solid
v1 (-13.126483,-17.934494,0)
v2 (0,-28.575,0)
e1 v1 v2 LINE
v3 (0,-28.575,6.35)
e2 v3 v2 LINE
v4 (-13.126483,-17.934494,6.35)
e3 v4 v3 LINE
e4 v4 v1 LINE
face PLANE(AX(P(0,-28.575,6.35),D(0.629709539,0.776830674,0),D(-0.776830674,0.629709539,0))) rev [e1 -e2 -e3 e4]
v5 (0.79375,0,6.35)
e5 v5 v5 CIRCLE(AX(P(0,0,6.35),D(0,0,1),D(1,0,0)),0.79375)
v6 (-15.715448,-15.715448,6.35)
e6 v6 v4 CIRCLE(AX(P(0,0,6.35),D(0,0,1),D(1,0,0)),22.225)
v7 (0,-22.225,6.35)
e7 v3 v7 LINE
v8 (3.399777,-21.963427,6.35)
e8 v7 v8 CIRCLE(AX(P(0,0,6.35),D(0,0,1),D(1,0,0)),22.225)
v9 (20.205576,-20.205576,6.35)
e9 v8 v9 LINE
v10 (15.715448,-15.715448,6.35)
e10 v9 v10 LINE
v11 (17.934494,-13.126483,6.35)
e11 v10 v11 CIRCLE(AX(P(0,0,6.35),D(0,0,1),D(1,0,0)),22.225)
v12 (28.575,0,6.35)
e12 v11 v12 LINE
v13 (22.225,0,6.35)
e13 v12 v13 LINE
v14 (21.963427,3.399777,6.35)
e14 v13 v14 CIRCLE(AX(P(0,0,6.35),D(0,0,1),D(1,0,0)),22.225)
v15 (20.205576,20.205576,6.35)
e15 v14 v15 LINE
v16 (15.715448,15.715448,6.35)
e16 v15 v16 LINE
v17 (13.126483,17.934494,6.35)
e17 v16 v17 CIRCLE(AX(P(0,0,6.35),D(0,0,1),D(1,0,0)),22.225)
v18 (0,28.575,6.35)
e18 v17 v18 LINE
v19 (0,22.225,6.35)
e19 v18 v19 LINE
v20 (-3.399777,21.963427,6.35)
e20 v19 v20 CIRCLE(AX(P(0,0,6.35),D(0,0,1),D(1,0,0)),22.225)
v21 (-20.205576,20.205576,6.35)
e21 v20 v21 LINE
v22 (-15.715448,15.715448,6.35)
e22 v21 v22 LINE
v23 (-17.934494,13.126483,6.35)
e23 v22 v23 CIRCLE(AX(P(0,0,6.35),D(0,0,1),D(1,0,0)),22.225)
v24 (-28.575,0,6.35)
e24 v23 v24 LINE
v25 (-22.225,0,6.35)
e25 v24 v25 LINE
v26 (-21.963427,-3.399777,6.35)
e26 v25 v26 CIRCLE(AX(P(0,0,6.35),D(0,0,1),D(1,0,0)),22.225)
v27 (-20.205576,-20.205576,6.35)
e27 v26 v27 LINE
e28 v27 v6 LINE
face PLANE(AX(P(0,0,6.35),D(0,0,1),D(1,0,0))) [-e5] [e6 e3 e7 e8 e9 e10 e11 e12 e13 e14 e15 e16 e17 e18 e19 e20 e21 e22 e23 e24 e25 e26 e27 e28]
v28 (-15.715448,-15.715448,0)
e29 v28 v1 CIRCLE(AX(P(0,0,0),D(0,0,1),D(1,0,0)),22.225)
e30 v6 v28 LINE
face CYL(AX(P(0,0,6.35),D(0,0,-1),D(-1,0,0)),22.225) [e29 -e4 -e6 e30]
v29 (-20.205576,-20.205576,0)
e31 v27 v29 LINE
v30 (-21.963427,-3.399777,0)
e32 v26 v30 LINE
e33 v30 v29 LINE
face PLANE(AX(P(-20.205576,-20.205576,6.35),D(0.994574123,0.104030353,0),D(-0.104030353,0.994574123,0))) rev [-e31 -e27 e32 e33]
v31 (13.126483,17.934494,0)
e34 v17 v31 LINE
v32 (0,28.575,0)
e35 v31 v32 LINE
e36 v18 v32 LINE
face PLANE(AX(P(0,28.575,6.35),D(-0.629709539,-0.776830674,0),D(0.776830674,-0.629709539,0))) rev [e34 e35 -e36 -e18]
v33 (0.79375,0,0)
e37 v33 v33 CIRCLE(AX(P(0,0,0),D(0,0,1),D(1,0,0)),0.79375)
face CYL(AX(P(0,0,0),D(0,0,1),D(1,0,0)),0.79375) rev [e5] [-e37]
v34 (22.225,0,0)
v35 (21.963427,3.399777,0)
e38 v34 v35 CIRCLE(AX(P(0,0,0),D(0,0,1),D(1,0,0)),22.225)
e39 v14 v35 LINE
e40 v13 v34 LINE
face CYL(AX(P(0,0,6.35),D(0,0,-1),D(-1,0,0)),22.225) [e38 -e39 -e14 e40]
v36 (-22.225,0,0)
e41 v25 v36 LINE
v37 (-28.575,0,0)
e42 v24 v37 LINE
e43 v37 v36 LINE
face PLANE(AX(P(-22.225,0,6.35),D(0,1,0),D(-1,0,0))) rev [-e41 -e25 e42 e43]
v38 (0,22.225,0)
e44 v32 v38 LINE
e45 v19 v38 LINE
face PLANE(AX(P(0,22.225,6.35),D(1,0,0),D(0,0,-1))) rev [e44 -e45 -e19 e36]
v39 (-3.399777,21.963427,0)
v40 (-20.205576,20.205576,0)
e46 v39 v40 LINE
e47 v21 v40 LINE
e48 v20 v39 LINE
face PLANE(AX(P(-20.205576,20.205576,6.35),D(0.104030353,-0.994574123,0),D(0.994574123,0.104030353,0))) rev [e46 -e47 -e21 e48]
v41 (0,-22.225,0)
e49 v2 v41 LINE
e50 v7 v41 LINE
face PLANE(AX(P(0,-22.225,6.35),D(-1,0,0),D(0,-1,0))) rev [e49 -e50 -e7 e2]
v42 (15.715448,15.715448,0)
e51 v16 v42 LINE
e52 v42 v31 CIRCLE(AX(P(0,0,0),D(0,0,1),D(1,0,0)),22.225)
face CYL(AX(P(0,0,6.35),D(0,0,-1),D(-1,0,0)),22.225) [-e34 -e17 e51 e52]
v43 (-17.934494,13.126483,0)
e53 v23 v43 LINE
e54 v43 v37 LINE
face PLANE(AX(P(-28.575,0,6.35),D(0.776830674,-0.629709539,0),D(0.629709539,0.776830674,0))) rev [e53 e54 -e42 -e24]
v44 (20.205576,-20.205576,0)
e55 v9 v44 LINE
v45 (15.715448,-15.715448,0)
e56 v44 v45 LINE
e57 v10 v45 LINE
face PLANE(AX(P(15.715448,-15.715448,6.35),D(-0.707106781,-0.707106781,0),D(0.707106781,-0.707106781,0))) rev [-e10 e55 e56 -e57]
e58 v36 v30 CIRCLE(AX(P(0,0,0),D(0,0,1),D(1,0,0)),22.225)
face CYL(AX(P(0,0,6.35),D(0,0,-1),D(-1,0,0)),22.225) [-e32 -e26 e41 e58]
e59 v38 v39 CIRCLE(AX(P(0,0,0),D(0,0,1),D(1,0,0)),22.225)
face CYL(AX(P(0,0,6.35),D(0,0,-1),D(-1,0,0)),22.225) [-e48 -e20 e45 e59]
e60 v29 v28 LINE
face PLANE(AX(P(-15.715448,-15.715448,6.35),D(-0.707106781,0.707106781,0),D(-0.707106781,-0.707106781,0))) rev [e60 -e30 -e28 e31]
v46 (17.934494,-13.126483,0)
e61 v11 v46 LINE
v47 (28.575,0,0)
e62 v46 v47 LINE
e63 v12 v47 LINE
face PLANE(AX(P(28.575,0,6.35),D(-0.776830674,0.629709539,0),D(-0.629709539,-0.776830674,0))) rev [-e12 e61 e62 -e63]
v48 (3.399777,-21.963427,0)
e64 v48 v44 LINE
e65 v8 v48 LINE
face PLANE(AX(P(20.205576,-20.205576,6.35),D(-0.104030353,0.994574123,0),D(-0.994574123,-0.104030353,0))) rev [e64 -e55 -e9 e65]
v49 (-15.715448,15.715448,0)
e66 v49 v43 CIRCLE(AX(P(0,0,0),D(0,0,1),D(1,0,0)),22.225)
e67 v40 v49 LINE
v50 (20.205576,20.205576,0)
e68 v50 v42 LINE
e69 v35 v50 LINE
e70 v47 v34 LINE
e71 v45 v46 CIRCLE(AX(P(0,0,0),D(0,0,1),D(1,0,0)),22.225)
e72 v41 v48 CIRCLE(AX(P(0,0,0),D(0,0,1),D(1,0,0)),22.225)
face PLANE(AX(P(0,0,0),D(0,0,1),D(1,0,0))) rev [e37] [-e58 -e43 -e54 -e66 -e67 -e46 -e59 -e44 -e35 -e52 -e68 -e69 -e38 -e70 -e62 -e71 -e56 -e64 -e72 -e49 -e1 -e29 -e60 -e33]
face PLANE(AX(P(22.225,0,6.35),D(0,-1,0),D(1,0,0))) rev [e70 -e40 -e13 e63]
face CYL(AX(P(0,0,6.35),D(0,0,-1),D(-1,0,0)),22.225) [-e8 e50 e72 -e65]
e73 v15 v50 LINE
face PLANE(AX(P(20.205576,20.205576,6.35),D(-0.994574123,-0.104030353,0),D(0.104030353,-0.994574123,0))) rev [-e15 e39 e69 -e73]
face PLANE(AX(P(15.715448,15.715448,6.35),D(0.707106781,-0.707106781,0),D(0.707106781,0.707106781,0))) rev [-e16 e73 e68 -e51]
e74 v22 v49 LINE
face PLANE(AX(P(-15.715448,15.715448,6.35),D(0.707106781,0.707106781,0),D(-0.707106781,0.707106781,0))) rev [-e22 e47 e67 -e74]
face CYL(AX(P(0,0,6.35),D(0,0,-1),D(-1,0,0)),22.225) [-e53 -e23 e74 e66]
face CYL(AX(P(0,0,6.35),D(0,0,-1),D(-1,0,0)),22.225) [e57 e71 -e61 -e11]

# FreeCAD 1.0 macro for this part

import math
import FreeCAD as App
import Part
import Sketcher

V = App.Vector
Q = App.Units.Quantity

doc = App.newDocument("Part")
body = doc.addObject("PartDesign::Body", "Body")

sketch1 = body.newObject("Sketcher::SketchObject", "Sketch")
sketch1.AttachmentSupport = (doc.getObject("XY_Plane"), [""])
sketch1.MapMode = "FlatFace"
sketch1.addGeometry([
    Part.LineSegment(V(0, 28.6, 0), V(0, 22.2, 0)),
    Part.ArcOfCircle(Part.Circle(V(0, 0, 0), V(0, 0, 1), 22.2), math.radians(90), math.radians(98.8)),
    Part.LineSegment(V(-3.4, 22, 0), V(-20.2, 20.2, 0)),
    Part.LineSegment(V(-20.2, 20.2, 0), V(-15.7, 15.7, 0)),
    Part.ArcOfCircle(Part.Circle(V(0, 0, 0), V(0, 0, 1), 22.2), math.radians(135), math.radians(143.8)),
    Part.LineSegment(V(-17.9, 13.1, 0), V(-28.6, 0, 0)),
    Part.LineSegment(V(-28.6, 0, 0), V(-22.2, 0, 0)),
    Part.ArcOfCircle(Part.Circle(V(0, 0, 0), V(0, 0, 1), 22.2), math.radians(180), math.radians(188.8)),
    Part.LineSegment(V(-22, -3.4, 0), V(-20.2, -20.2, 0)),
    Part.LineSegment(V(-20.2, -20.2, 0), V(-15.7, -15.7, 0)),
    Part.ArcOfCircle(Part.Circle(V(0, 0, 0), V(0, 0, 1), 22.2), math.radians(-135), math.radians(-126.2)),
    Part.LineSegment(V(-13.1, -17.9, 0), V(0, -28.6, 0)),
    Part.LineSegment(V(0, -28.6, 0), V(0, -22.2, 0)),
    Part.ArcOfCircle(Part.Circle(V(0, 0, 0), V(0, 0, 1), 22.2), math.radians(-90), math.radians(-81.2)),
    Part.LineSegment(V(3.4, -22, 0), V(20.2, -20.2, 0)),
    Part.LineSegment(V(20.2, -20.2, 0), V(15.7, -15.7, 0)),
    Part.ArcOfCircle(Part.Circle(V(0, 0, 0), V(0, 0, 1), 22.2), math.radians(-45), math.radians(-36.2)),
    Part.LineSegment(V(17.9, -13.1, 0), V(28.6, 0, 0)),
    Part.LineSegment(V(28.6, 0, 0), V(22.2, 0, 0)),
    Part.ArcOfCircle(Part.Circle(V(0, 0, 0), V(0, 0, 1), 22.2), math.radians(0), math.radians(8.8)),
    Part.LineSegment(V(22, 3.4, 0), V(20.2, 20.2, 0)),
    Part.LineSegment(V(20.2, 20.2, 0), V(15.7, 15.7, 0)),
    Part.ArcOfCircle(Part.Circle(V(0, 0, 0), V(0, 0, 1), 22.2), math.radians(45), math.radians(53.8)),
    Part.LineSegment(V(13.1, 17.9, 0), V(0, 28.6, 0)),
], False)
sketch1.addConstraint([
    Sketcher.Constraint("Coincident", 0, 2, 1, 1),
    Sketcher.Constraint("Coincident", 1, 2, 2, 1),
    Sketcher.Constraint("Coincident", 2, 2, 3, 1),
    Sketcher.Constraint("Coincident", 3, 2, 4, 1),
    Sketcher.Constraint("Coincident", 4, 2, 5, 1),
    Sketcher.Constraint("Coincident", 5, 2, 6, 1),
    Sketcher.Constraint("Coincident", 6, 2, 7, 1),
    Sketcher.Constraint("Coincident", 7, 2, 8, 1),
    Sketcher.Constraint("Coincident", 8, 2, 9, 1),
    Sketcher.Constraint("Coincident", 9, 2, 10, 1),
    Sketcher.Constraint("Coincident", 10, 2, 11, 1),
    Sketcher.Constraint("Coincident", 11, 2, 12, 1),
    Sketcher.Constraint("Coincident", 12, 2, 13, 1),
    Sketcher.Constraint("Coincident", 13, 2, 14, 1),
    Sketcher.Constraint("Coincident", 14, 2, 15, 1),
    Sketcher.Constraint("Coincident", 15, 2, 16, 1),
    Sketcher.Constraint("Coincident", 16, 2, 17, 1),
    Sketcher.Constraint("Coincident", 17, 2, 18, 1),
    Sketcher.Constraint("Coincident", 18, 2, 19, 1),
    Sketcher.Constraint("Coincident", 19, 2, 20, 1),
    Sketcher.Constraint("Coincident", 20, 2, 21, 1),
    Sketcher.Constraint("Coincident", 21, 2, 22, 1),
    Sketcher.Constraint("Coincident", 22, 2, 23, 1),
    Sketcher.Constraint("Coincident", 23, 2, 0, 1),
    Sketcher.Constraint("Vertical", 0),
    Sketcher.Constraint("Horizontal", 6),
    Sketcher.Constraint("Vertical", 12),
    Sketcher.Constraint("Horizontal", 18),
    Sketcher.Constraint("Coincident", 1, 3, -1, 1),
    Sketcher.Constraint("Coincident", 4, 3, -1, 1),
    Sketcher.Constraint("Coincident", 7, 3, -1, 1),
    Sketcher.Constraint("Coincident", 10, 3, -1, 1),
    Sketcher.Constraint("Coincident", 13, 3, -1, 1),
    Sketcher.Constraint("Coincident", 16, 3, -1, 1),
    Sketcher.Constraint("Coincident", 19, 3, -1, 1),
    Sketcher.Constraint("Coincident", 22, 3, -1, 1),
    Sketcher.Constraint("Equal", 1, 4),
    Sketcher.Constraint("Equal", 4, 7),
    Sketcher.Constraint("Equal", 7, 10),
    Sketcher.Constraint("Equal", 10, 13),
    Sketcher.Constraint("Equal", 13, 16),
    Sketcher.Constraint("Equal", 16, 19),
    Sketcher.Constraint("Equal", 19, 22),
    Sketcher.Constraint("Symmetric", 2, 2, 14, 2, -1, 1),
    Sketcher.Constraint("Symmetric", 5, 2, 17, 2, -1, 1),
    Sketcher.Constraint("Symmetric", 8, 2, 20, 2, -1, 1),
    Sketcher.Constraint("Symmetric", 11, 2, 23, 2, -1, 1),
    Sketcher.Constraint("Symmetric", 8, 2, 14, 2, -2),
    Sketcher.Constraint("PointOnObject", 0, 2, -2),
    Sketcher.Constraint("PointOnObject", 5, 2, -1),
    Sketcher.Constraint("Perpendicular", 2, 8),
    Sketcher.Constraint("Perpendicular", 3, 9),
    Sketcher.Constraint("Perpendicular", 5, 11),
    Sketcher.Constraint("Perpendicular", 8, 14),
    Sketcher.Constraint("Perpendicular", 9, 15),
    Sketcher.Constraint("Perpendicular", 11, 17),
    Sketcher.Constraint("Perpendicular", 14, 20),
    Sketcher.Constraint("Perpendicular", 15, 21),
    Sketcher.Constraint("Perpendicular", 17, 23),
    Sketcher.Constraint("Horizontal", 9, 2, 15, 2),
    Sketcher.Constraint("Equal", 18, 0),
    Sketcher.Constraint("Equal", 2, 5),
    Sketcher.Constraint("Equal", 5, 8),
    Sketcher.Constraint("Radius", 1, Q("0.875 in")),
    Sketcher.Constraint("DistanceX", 6, 1, 6, 2, Q("0.25 in")),
    Sketcher.Constraint("Distance", 3, Q("0.25 in")),
    Sketcher.Constraint("DistanceX", 2, 2, 1, 2, 16.8058),
])
pad1 = body.newObject("PartDesign::Pad", "Pad")
pad1.Profile = sketch1
pad1.Length = Q("0.25 in")

sketch2 = body.newObject("Sketcher::SketchObject", "Sketch001")
sketch2.AttachmentSupport = (doc.getObject("XY_Plane"), [""])
sketch2.MapMode = "FlatFace"
sketch2.AttachmentOffset = App.Placement(V(0, 0, 0.25 * 25.4), App.Rotation())
sketch2.addGeometry(Part.Circle(V(0, 0, 0), V(0, 0, 1), 0.8), False)
sketch2.addConstraint([
    Sketcher.Constraint("Coincident", 0, 3, -1, 1),
    Sketcher.Constraint("Diameter", 0, Q("0.0625 in")),
])
pocket1 = body.newObject("PartDesign::Pocket", "Pocket")
pocket1.Profile = sketch2
pocket1.Type = "ThroughAll"

doc.recompute()
